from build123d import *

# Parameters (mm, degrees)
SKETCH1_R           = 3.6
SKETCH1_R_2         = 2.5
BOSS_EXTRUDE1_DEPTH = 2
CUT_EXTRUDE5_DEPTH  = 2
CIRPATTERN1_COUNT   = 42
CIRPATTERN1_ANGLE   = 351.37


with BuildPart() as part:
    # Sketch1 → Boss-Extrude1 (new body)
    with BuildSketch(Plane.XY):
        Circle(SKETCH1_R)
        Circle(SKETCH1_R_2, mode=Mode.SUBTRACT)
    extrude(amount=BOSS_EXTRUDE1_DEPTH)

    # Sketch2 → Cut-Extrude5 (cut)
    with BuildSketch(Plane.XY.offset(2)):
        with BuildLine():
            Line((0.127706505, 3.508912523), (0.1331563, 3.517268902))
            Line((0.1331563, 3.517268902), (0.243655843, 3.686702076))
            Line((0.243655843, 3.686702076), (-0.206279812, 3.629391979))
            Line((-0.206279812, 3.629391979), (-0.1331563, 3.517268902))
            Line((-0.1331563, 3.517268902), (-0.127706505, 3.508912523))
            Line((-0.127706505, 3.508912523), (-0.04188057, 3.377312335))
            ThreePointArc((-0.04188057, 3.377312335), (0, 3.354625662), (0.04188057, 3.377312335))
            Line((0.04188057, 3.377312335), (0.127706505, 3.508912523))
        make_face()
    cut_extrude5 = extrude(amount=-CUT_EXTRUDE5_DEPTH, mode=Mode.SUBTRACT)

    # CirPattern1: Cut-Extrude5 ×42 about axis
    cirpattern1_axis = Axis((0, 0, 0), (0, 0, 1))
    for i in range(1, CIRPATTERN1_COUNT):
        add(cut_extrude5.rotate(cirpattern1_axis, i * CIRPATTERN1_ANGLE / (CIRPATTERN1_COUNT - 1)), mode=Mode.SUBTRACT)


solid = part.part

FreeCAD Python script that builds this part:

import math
import FreeCAD as App
import Part
import Sketcher
from FreeCAD import Vector
Q = App.Units.Quantity

doc = App.newDocument("Part")
body = doc.addObject("PartDesign::Body", "Body")

# Sketch on XY plane
sketch1 = body.newObject("Sketcher::SketchObject", "Sketch")
sketch1.AttachmentSupport = (doc.getObject("XY_Plane"), [""])
sketch1.MapMode = "FlatFace"
sketch1.addGeometry(Part.Circle(Vector(0, 0, 0), Vector(0, 0, 1), 3.6), False)
sketch1.addGeometry(Part.Circle(Vector(0, 0, 0), Vector(0, 0, 1), 2.5), False)
sketch1.addConstraint(Sketcher.Constraint("Coincident", 0, 3, -1, 1))
sketch1.addConstraint(Sketcher.Constraint("Coincident", 1, 3, -1, 1))
sketch1.addConstraint(Sketcher.Constraint("Diameter", 1, Q("5 mm")))
sketch1.addConstraint(Sketcher.Constraint("Diameter", 0, Q("7.2 mm")))
pad1 = body.newObject("PartDesign::Pad", "Pad")
pad1.Profile = sketch1
pad1.Length = 2

# Sketch on XY plane
sketch2 = body.newObject("Sketcher::SketchObject", "Sketch001")
sketch2.AttachmentSupport = (doc.getObject("XY_Plane"), [""])
sketch2.MapMode = "FlatFace"
sketch2.AttachmentOffset = App.Placement(Vector(0, 0, 2), App.Rotation())
sketch2.addGeometry(Part.LineSegment(Vector(0.128, 3.509, 0), Vector(0.133, 3.517, 0)), False)
sketch2.addGeometry(Part.LineSegment(Vector(0.133, 3.517, 0), Vector(0.244, 3.687, 0)), False)
sketch2.addGeometry(Part.LineSegment(Vector(0.244, 3.687, 0), Vector(-0.206, 3.629, 0)), False)
sketch2.addGeometry(Part.LineSegment(Vector(-0.206, 3.629, 0), Vector(-0.133, 3.517, 0)), False)
sketch2.addGeometry(Part.LineSegment(Vector(-0.133, 3.517, 0), Vector(-0.128, 3.509, 0)), False)
sketch2.addGeometry(Part.LineSegment(Vector(-0.128, 3.509, 0), Vector(-0.042, 3.377, 0)), False)
sketch2.addGeometry(Part.ArcOfCircle(Part.Circle(Vector(0, 3.405, 0), Vector(0, 0, 1), 0.05), math.radians(-147), math.radians(-33)), False)
sketch2.addGeometry(Part.LineSegment(Vector(0.042, 3.377, 0), Vector(0.128, 3.509, 0)), False)
sketch2.addConstraint(Sketcher.Constraint("Coincident", 0, 2, 1, 1))
sketch2.addConstraint(Sketcher.Constraint("Coincident", 1, 2, 2, 1))
sketch2.addConstraint(Sketcher.Constraint("Coincident", 2, 2, 3, 1))
sketch2.addConstraint(Sketcher.Constraint("Coincident", 3, 2, 4, 1))
sketch2.addConstraint(Sketcher.Constraint("Coincident", 4, 2, 5, 1))
sketch2.addConstraint(Sketcher.Constraint("Tangent", 5, 2, 6, 1))
sketch2.addConstraint(Sketcher.Constraint("Tangent", 6, 2, 7, 1))
sketch2.addConstraint(Sketcher.Constraint("Coincident", 7, 2, 0, 1))
sketch2.addConstraint(Sketcher.Constraint("Symmetric", 0, 2, 3, 2, -2))
sketch2.addConstraint(Sketcher.Constraint("Symmetric", 5, 2, 6, 2, -2))
sketch2.addConstraint(Sketcher.Constraint("Parallel", 0, 1))
sketch2.addConstraint(Sketcher.Constraint("Parallel", 3, 4))
sketch2.addConstraint(Sketcher.Constraint("Parallel", 4, 5))
sketch2.addConstraint(Sketcher.Constraint("Horizontal", 4, 2, 7, 2))
sketch2.addConstraint(Sketcher.Constraint("Radius", 6, Q("0.05 mm")))
sketch2.addConstraint(Sketcher.Constraint("DistanceX", 0, 2, 1, 2, Q("0.1105 mm")))
sketch2.addConstraint(Sketcher.Constraint("DistanceY", 5, 2, 4, 2, Q("0.1316 mm")))
sketch2.addConstraint(Sketcher.Constraint("DistanceX", 2, 2, 5, 2, Q("0.164399 mm")))
sketch2.addConstraint(Sketcher.Constraint("Distance", 1, Q("0.202281 mm")))
sketch2.addConstraint(Sketcher.Constraint("Distance", 2, Q("0.453571 mm")))
sketch2.addConstraint(Sketcher.Constraint("DistanceY", -1, 1, 0, 2, Q("3.517269 mm")))
pocket1 = body.newObject("PartDesign::Pocket", "Pocket")
pocket1.Profile = sketch2
pocket1.Length = 2
doc.recompute()

polarpattern = body.newObject("PartDesign::PolarPattern", "PolarPattern")
polarpattern.Originals = [pocket1]
polarpattern.Axis = (doc.getObject("Z_Axis"), [""])
polarpattern.Angle = 351.37
polarpattern.Occurrences = 42
body.Tip = polarpattern

doc.recompute()
